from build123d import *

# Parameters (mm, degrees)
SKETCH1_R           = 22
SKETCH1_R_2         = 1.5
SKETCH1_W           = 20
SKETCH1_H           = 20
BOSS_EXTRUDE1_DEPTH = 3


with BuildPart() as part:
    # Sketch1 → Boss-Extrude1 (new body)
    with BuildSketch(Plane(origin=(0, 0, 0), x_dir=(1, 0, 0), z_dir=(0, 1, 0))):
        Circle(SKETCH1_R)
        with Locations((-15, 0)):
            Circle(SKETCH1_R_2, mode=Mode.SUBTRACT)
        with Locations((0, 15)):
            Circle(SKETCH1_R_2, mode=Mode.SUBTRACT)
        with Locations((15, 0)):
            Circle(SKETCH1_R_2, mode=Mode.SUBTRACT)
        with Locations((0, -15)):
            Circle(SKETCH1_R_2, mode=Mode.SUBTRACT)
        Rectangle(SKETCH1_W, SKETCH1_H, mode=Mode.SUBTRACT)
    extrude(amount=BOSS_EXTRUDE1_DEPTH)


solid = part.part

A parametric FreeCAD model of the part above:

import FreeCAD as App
import Part
import Sketcher

V = App.Vector


def add_polygon(sketch, points):
    """Adds a closed chain of lines whose ends are joined by coincident constraints."""
    first, n = sketch.GeometryCount, len(points)
    for a, b in zip(points, points[1:] + points[:1]):
        sketch.addGeometry(Part.LineSegment(App.Vector(*a, 0), App.Vector(*b, 0)), False)
    for i in range(n):
        sketch.addConstraint(Sketcher.Constraint("Coincident", first + i, 2, first + (i + 1) % n, 1))

doc = App.newDocument("Part")
body = doc.addObject("PartDesign::Body", "Body")

sketch1 = body.newObject("Sketcher::SketchObject", "Sketch")
sketch1.AttachmentSupport = (doc.getObject("XZ_Plane"), [""])
sketch1.MapMode = "FlatFace"
sketch1.addGeometry(Part.Circle(V(0, 0, 0), V(0, 0, 1), 22), False)
sketch1.addGeometry(Part.Circle(V(0, 15, 0), V(0, 0, 1), 1.5), False)
sketch1.addGeometry(Part.Circle(V(-15, 0, 0), V(0, 0, 1), 1.5), False)
add_polygon(sketch1, [(10, 10), (-10, 10), (-10, -10), (10, -10)])
sketch1.addGeometry(Part.Circle(V(15, 0, 0), V(0, 0, 1), 1.5), False)
sketch1.addGeometry(Part.Circle(V(0, -15, 0), V(0, 0, 1), 1.5), False)
sketch1.addConstraint([
    Sketcher.Constraint("Horizontal", 3),
    Sketcher.Constraint("Vertical", 4),
    Sketcher.Constraint("Horizontal", 5),
    Sketcher.Constraint("Vertical", 6),
    Sketcher.Constraint("Coincident", 0, 3, -1, 1),
    Sketcher.Constraint("Equal", 1, 2),
    Sketcher.Constraint("Equal", 2, 7),
    Sketcher.Constraint("Equal", 7, 8),
    Sketcher.Constraint("Symmetric", 2, 3, 7, 3, -1, 1),
    Sketcher.Constraint("Symmetric", 1, 3, 8, 3, -1, 1),
    Sketcher.Constraint("Symmetric", 3, 2, 5, 2, -1, 1),
    Sketcher.Constraint("PointOnObject", 1, 3, -2),
    Sketcher.Constraint("PointOnObject", 2, 3, -1),
    Sketcher.Constraint("Equal", 5, 4),
    Sketcher.Constraint("Diameter", 0, 44.0),
    Sketcher.Constraint("Diameter", 1, 3.0),
    Sketcher.Constraint("DistanceX", 3, 2, 3, 1, 20.0),
    Sketcher.Constraint("DistanceY", -1, 1, 1, 3, 15.0),
    Sketcher.Constraint("DistanceX", 2, 3, -1, 1, 15.0),
])
pad1 = body.newObject("PartDesign::Pad", "Pad")
pad1.Profile = sketch1
pad1.Length = 3
pad1.Reversed = True

doc.recompute()
